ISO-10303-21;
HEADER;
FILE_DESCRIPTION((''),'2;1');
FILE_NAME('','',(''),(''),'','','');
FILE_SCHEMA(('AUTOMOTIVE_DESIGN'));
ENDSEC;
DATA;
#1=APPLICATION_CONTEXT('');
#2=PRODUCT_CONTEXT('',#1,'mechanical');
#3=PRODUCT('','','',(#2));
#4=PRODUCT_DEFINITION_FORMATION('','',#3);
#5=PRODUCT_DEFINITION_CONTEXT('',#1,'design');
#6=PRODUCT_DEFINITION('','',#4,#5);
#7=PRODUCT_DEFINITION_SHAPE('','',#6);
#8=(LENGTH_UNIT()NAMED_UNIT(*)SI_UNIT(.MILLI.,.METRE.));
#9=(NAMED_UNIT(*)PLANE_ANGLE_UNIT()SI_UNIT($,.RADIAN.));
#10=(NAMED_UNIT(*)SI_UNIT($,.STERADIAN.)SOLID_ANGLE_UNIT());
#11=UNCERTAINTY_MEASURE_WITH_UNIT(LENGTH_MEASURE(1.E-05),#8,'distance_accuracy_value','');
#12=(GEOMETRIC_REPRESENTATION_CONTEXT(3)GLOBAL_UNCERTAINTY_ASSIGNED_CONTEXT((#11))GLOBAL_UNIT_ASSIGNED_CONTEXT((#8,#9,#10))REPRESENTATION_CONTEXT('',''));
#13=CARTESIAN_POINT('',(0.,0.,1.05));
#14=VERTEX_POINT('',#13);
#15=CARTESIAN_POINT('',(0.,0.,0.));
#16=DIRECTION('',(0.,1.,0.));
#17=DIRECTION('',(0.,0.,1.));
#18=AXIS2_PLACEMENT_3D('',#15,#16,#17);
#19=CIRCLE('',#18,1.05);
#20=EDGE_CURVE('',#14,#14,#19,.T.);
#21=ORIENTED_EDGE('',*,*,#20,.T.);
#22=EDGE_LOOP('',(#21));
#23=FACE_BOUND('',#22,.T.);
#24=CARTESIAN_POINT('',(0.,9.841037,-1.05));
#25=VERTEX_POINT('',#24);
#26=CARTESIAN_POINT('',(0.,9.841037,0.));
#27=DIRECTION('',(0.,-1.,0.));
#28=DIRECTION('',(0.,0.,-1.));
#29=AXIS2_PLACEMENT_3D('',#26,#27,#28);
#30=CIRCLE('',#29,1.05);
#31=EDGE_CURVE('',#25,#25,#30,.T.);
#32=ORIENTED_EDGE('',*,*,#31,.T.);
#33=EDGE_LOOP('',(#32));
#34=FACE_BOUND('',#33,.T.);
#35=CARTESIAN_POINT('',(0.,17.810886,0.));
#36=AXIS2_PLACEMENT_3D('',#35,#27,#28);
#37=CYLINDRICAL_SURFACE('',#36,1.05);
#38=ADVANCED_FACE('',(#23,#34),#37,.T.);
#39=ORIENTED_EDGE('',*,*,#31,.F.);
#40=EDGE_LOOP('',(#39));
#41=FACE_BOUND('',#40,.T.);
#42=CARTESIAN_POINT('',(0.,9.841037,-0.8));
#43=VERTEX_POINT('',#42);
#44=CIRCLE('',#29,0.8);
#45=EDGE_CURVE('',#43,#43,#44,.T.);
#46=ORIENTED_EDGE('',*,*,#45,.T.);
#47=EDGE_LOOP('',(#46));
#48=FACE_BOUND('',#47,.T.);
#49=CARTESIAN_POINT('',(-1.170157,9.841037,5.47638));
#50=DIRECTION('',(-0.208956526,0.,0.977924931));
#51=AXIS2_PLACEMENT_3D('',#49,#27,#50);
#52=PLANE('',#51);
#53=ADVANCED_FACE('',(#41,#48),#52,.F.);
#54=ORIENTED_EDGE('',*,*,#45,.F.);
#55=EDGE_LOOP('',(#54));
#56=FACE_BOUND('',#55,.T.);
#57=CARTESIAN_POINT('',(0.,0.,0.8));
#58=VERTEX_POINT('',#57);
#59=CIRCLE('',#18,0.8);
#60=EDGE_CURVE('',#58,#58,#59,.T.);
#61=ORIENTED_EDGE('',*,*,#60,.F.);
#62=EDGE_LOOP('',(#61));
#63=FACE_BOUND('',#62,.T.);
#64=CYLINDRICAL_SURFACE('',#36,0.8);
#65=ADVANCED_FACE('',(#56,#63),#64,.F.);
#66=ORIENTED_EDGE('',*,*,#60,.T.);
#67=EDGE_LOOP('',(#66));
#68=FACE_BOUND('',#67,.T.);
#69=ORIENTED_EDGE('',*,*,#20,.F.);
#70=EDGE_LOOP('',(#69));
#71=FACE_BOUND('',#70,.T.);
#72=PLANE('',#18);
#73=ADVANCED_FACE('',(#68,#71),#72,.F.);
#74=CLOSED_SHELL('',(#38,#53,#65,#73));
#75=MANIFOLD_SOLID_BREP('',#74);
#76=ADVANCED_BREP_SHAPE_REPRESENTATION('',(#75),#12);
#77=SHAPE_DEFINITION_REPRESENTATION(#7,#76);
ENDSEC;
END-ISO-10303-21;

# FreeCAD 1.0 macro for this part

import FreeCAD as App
import Part
import Sketcher
Q = App.Units.Quantity

doc = App.newDocument("Part")
body = doc.addObject("PartDesign::Body", "Body")

# Sketch on XZ plane
sketch1 = body.newObject("Sketcher::SketchObject", "Sketch")
sketch1.AttachmentSupport = (doc.getObject("XZ_Plane"), [""])
sketch1.MapMode = "FlatFace"
sketch1.addGeometry(Part.Circle(App.Vector(0, 0, 0), App.Vector(0, 0, 1), 1.1), False)
sketch1.addGeometry(Part.Circle(App.Vector(0, 0, 0), App.Vector(0, 0, 1), 0.8), False)
sketch1.addConstraint(Sketcher.Constraint("Coincident", 0, 3, -1, 1))
sketch1.addConstraint(Sketcher.Constraint("Coincident", 1, 3, -1, 1))
sketch1.addConstraint(Sketcher.Constraint("Diameter", 0, Q("2.1 mm")))
sketch1.addConstraint(Sketcher.Constraint("Diameter", 1, Q("1.6 mm")))
pad1 = body.newObject("PartDesign::Pad", "Pad")
pad1.Profile = sketch1
pad1.Length = 9.841037
pad1.Reversed = True

doc.recompute()
